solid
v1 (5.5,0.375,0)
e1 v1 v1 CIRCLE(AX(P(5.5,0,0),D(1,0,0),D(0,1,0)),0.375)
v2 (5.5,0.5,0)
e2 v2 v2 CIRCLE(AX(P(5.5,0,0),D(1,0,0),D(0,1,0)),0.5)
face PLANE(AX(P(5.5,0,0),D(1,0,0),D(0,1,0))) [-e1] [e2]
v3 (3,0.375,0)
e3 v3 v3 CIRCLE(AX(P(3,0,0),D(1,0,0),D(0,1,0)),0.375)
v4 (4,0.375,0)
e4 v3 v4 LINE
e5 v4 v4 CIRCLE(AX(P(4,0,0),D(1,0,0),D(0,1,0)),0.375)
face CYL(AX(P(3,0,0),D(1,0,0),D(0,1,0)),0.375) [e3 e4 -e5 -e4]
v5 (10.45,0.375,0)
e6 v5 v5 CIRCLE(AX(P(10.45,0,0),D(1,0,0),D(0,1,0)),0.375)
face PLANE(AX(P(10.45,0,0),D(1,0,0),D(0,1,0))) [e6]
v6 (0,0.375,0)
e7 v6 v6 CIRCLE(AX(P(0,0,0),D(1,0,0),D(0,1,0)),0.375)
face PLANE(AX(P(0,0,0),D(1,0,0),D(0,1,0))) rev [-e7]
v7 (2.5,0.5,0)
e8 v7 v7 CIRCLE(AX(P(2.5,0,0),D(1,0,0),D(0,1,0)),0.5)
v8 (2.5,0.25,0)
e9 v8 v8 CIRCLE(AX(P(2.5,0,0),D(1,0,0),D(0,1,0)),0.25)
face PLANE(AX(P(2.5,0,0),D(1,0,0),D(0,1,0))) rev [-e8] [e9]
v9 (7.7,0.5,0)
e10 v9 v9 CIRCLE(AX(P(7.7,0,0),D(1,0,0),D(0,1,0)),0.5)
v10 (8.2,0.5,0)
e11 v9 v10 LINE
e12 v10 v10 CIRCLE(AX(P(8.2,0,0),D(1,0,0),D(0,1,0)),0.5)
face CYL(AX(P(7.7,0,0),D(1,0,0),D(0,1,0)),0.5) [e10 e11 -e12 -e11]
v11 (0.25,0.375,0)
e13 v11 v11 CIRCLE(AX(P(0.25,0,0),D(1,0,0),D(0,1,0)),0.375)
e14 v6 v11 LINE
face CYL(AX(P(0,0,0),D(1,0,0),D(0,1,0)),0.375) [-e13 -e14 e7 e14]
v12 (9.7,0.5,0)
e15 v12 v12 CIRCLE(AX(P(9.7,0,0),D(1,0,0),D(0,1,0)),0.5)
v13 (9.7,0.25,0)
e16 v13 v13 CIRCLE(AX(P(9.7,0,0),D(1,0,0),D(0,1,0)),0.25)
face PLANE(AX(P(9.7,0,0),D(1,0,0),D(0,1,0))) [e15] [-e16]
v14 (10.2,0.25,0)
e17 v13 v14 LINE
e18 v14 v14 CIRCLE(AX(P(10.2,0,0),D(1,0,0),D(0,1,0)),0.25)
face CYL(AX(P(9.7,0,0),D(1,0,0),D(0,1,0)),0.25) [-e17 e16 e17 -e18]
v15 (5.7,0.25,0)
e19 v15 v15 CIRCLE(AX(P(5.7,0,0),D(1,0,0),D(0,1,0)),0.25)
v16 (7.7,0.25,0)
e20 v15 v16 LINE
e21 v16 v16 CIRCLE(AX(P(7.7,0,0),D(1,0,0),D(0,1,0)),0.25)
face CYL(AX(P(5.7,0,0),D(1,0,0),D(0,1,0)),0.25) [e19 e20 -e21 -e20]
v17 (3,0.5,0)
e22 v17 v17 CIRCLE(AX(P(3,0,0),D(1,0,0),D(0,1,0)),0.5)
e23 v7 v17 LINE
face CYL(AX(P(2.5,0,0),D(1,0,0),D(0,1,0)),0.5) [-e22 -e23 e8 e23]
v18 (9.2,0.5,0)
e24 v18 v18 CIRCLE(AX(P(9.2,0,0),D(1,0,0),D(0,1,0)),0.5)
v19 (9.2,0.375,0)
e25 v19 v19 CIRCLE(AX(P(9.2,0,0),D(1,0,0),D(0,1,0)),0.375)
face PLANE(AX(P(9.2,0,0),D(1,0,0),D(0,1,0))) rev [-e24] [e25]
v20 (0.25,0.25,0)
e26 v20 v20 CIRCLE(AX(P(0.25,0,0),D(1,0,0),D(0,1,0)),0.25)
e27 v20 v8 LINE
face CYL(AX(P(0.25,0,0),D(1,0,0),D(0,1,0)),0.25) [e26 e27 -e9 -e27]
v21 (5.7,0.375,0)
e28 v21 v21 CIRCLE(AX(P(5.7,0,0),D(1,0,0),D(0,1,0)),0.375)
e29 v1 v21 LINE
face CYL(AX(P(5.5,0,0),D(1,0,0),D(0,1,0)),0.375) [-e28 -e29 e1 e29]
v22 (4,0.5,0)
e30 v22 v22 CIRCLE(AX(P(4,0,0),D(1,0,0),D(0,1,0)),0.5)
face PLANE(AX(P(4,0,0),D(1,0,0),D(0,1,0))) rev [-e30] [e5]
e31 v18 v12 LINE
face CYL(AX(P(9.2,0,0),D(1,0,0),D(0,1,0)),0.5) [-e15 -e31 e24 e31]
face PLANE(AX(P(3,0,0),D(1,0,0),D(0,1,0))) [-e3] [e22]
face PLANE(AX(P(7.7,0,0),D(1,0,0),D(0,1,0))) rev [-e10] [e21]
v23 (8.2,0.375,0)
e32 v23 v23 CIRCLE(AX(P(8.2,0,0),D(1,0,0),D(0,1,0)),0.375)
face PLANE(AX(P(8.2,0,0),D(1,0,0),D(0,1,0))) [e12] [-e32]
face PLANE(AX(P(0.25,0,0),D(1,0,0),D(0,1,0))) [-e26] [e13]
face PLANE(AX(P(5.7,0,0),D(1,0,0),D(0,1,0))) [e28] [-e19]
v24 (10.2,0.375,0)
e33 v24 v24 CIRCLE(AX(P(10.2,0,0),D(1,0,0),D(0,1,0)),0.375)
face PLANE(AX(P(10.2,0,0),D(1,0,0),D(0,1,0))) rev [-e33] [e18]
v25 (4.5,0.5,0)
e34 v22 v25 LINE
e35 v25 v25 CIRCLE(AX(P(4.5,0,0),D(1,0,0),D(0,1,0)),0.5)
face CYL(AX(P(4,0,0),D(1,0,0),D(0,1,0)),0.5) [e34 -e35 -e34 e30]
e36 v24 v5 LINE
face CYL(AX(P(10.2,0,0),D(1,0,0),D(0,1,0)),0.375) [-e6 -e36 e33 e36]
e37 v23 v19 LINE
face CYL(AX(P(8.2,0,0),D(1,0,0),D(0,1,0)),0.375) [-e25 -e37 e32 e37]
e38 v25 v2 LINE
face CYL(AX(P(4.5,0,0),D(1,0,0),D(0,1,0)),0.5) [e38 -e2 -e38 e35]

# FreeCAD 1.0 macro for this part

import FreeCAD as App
import Part
import Sketcher

V = App.Vector


def add_polygon(sketch, points):
    """Adds a closed chain of lines whose ends are joined by coincident constraints."""
    first, n = sketch.GeometryCount, len(points)
    for a, b in zip(points, points[1:] + points[:1]):
        sketch.addGeometry(Part.LineSegment(App.Vector(*a, 0), App.Vector(*b, 0)), False)
    for i in range(n):
        sketch.addConstraint(Sketcher.Constraint("Coincident", first + i, 2, first + (i + 1) % n, 1))

doc = App.newDocument("Part")
body = doc.addObject("PartDesign::Body", "Body")

sketch1 = body.newObject("Sketcher::SketchObject", "Sketch")
sketch1.AttachmentSupport = (doc.getObject("XY_Plane"), [""])
sketch1.MapMode = "FlatFace"
add_polygon(sketch1, [(0, 0.38), (0, 0), (10.45, 0), (10.45, 0.38), (10.2, 0.38), (10.2, 0.25), (9.7, 0.25), (9.7, 0.5), (9.2, 0.5), (9.2, 0.38), (8.2, 0.38), (8.2, 0.5), (7.7, 0.5), (7.7, 0.25), (5.7, 0.25), (5.7, 0.38), (5.5, 0.38), (5.5, 0.5), (4, 0.5), (4, 0.38), (3, 0.38), (3, 0.5), (2.5, 0.5), (2.5, 0.25), (0.25, 0.25), (0.25, 0.38)])
sketch1.addConstraint([
    Sketcher.Constraint("Vertical", 0),
    Sketcher.Constraint("Horizontal", 1),
    Sketcher.Constraint("Vertical", 2),
    Sketcher.Constraint("Horizontal", 3),
    Sketcher.Constraint("Vertical", 4),
    Sketcher.Constraint("Horizontal", 5),
    Sketcher.Constraint("Vertical", 6),
    Sketcher.Constraint("Horizontal", 7),
    Sketcher.Constraint("Vertical", 8),
    Sketcher.Constraint("Horizontal", 9),
    Sketcher.Constraint("Vertical", 10),
    Sketcher.Constraint("Horizontal", 11),
    Sketcher.Constraint("Vertical", 12),
    Sketcher.Constraint("Horizontal", 13),
    Sketcher.Constraint("Vertical", 14),
    Sketcher.Constraint("Horizontal", 15),
    Sketcher.Constraint("Vertical", 16),
    Sketcher.Constraint("Horizontal", 17),
    Sketcher.Constraint("Vertical", 18),
    Sketcher.Constraint("Horizontal", 19),
    Sketcher.Constraint("Vertical", 20),
    Sketcher.Constraint("Horizontal", 21),
    Sketcher.Constraint("Vertical", 22),
    Sketcher.Constraint("Horizontal", 23),
    Sketcher.Constraint("Vertical", 24),
    Sketcher.Constraint("Horizontal", 25),
    Sketcher.Constraint("Coincident", 0, 2, -1, 1),
    Sketcher.Constraint("Horizontal", 3, 2, 8, 2),
    Sketcher.Constraint("Horizontal", 7, 2, 10, 2),
    Sketcher.Constraint("Horizontal", 5, 2, 12, 2),
    Sketcher.Constraint("Horizontal", 9, 2, 14, 2),
    Sketcher.Constraint("Horizontal", 11, 2, 16, 2),
    Sketcher.Constraint("Horizontal", 15, 2, 18, 2),
    Sketcher.Constraint("Horizontal", 17, 2, 20, 2),
    Sketcher.Constraint("Horizontal", 13, 2, 22, 2),
    Sketcher.Constraint("Horizontal", 19, 2, 24, 2),
    Sketcher.Constraint("Equal", 5, 7),
    Sketcher.Constraint("Equal", 7, 11),
    Sketcher.Constraint("Equal", 9, 19),
    Sketcher.Constraint("Equal", 11, 21),
    Sketcher.Constraint("Equal", 3, 25),
    Sketcher.Constraint("Equal", 25, 6),
    Sketcher.Constraint("Equal", 4, 8),
    Sketcher.Constraint("DistanceX", 9, 2, 9, 1, 1.0),
    Sketcher.Constraint("DistanceX", 5, 2, 5, 1, 0.5),
    Sketcher.Constraint("DistanceY", -1, 1, 6, 2, 0.5),
    Sketcher.Constraint("DistanceX", 13, 2, 13, 1, 2.0),
    Sketcher.Constraint("DistanceX", 5, 2, 2, 2, 0.75),
    Sketcher.Constraint("DistanceX", 15, 2, 15, 1, 0.2),
    Sketcher.Constraint("DistanceX", 17, 2, 17, 1, 1.5),
    Sketcher.Constraint("DistanceX", -1, 1, 17, 2, 4.0),
])
revolution = body.newObject("PartDesign::Revolution", "Revolution")
revolution.Profile = sketch1
revolution.ReferenceAxis = (sketch1, ["H_Axis"])
revolution.Angle = 360

doc.recompute()
